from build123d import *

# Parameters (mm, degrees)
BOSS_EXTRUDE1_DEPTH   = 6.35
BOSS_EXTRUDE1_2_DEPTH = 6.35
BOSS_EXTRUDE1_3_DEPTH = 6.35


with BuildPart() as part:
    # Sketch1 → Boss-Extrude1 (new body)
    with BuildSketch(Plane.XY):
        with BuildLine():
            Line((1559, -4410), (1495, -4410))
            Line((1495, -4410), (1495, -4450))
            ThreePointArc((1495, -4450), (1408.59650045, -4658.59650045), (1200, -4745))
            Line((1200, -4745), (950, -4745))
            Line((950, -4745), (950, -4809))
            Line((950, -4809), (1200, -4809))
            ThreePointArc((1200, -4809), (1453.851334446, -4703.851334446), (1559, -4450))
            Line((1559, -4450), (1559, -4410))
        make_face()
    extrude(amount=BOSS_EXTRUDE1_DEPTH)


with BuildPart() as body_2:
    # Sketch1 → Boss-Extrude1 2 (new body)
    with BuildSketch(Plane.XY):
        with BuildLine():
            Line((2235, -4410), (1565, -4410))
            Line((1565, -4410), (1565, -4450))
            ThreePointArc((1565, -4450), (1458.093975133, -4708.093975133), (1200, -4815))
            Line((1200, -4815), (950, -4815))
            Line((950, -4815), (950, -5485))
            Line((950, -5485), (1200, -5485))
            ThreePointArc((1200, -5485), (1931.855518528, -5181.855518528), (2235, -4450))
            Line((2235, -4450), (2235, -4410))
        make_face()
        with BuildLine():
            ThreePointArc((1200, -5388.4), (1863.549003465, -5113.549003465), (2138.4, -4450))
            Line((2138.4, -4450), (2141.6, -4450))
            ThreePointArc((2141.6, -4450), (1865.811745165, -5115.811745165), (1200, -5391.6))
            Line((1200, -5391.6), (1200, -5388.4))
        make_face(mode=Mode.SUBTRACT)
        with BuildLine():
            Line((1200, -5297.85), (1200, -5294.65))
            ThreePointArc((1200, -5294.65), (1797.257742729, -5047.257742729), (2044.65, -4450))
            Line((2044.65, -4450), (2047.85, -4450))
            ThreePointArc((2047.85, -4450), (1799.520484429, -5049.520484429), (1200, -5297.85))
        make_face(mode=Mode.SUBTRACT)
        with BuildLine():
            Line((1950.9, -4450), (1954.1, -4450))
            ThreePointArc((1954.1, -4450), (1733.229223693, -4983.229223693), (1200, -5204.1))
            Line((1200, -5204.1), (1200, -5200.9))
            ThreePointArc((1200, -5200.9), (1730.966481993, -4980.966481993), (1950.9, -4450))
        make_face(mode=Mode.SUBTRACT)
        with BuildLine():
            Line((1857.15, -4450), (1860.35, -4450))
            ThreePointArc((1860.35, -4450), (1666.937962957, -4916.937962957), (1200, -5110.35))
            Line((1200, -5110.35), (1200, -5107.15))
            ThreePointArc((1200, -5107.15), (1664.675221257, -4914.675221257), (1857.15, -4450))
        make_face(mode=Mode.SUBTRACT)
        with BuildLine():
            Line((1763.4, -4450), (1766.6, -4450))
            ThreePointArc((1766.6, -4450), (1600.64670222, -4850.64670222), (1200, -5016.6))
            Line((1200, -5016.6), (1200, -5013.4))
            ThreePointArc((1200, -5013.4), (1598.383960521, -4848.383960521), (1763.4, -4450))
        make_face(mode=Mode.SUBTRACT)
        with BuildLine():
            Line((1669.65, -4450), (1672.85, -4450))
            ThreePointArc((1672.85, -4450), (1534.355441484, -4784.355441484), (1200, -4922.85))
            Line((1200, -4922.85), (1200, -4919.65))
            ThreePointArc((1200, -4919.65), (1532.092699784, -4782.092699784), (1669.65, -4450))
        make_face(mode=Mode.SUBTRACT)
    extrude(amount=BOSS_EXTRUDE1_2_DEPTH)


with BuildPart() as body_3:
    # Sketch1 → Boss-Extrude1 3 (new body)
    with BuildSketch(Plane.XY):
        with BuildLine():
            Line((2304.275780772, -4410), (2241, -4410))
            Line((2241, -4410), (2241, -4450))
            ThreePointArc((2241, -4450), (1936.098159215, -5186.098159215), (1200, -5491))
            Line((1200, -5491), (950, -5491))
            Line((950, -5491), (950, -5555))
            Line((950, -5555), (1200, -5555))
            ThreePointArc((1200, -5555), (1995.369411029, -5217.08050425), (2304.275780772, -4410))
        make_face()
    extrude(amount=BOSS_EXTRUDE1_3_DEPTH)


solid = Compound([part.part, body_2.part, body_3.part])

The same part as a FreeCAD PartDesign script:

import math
import FreeCAD as App
import Part
import Sketcher
from FreeCAD import Vector

doc = App.newDocument("Part")
params = doc.addObject("Spreadsheet::Sheet", "Params")
for row, (alias, value) in enumerate([
    ("sketch1_radius", "295 mm"),
    ("sketch1_radius2", "359 mm"),
    ("sketch1_width", "250 mm"),
    ("sketch1_height", "40 mm"),
    ("pad1_length", "6.35 mm"),
    ("sketch2_radius", "365 mm"),
    ("sketch2_radius2", "1035 mm"),
    ("sketch2_radius3", "938.4 mm"),
    ("sketch2_radius4", "941.6 mm"),
    ("sketch2_radius5", "750.9 mm"),
    ("pad2_length", "6.35 mm"),
    ("sketch3_radius", "1041 mm"),
    ("sketch3_radius2", "1105 mm"),
    ("sketch3_width", "250 mm"),
    ("sketch3_height", "40 mm"),
    ("pad3_length", "6.35 mm"),
], start=1):
    params.set(f"A{row}", alias)
    params.set(f"B{row}", "=" + value)
    params.setAlias(f"B{row}", alias)

body = doc.addObject("PartDesign::Body", "Body")

# Sketch on XY plane
sketch1 = doc.addObject("Sketcher::SketchObject", "Sketch")
body.addObject(sketch1)
sketch1.AttachmentSupport = (doc.XY_Plane, [""])
sketch1.MapMode = "FlatFace"
sketch1.addGeometry([
    Part.LineSegment(Vector(1559, -4410, 0), Vector(1495, -4410, 0)),  # 0
    Part.LineSegment(Vector(1495, -4410, 0), Vector(1495, -4450, 0)),  # 1
    Part.ArcOfCircle(Part.Circle(Vector(1200, -4450, 0), Vector(0, 0, 1), 295), math.radians(-90), math.radians(0)),  # 2
    Part.LineSegment(Vector(1200, -4745, 0), Vector(950, -4745, 0)),  # 3
    Part.LineSegment(Vector(950, -4745, 0), Vector(950, -4809, 0)),  # 4
    Part.LineSegment(Vector(950, -4809, 0), Vector(1200, -4809, 0)),  # 5
    Part.ArcOfCircle(Part.Circle(Vector(1200, -4450, 0), Vector(0, 0, 1), 359), math.radians(-90), math.radians(0)),  # 6
    Part.LineSegment(Vector(1559, -4450, 0), Vector(1559, -4410, 0)),  # 7
], False)
sketch1.addConstraint([
    Sketcher.Constraint("Coincident", 0, 2, 1, 1),
    Sketcher.Constraint("Tangent", 1, 2, 2, 2),
    Sketcher.Constraint("Tangent", 2, 1, 3, 1),
    Sketcher.Constraint("Coincident", 3, 2, 4, 1),
    Sketcher.Constraint("Coincident", 4, 2, 5, 1),
    Sketcher.Constraint("Tangent", 5, 2, 6, 1),
    Sketcher.Constraint("Tangent", 6, 2, 7, 1),
    Sketcher.Constraint("Coincident", 7, 2, 0, 1),
    Sketcher.Constraint("Horizontal", 0),
    Sketcher.Constraint("Vertical", 1),
    Sketcher.Constraint("Horizontal", 3),
    Sketcher.Constraint("Vertical", 4),
    Sketcher.Constraint("Horizontal", 5),
    Sketcher.Constraint("Vertical", 7),
    Sketcher.Constraint("Coincident", 6, 3, 2, 3),
    Sketcher.Constraint("Radius", 2, 295.0),
    Sketcher.Constraint("Radius", 6, 359.0),
    Sketcher.Constraint("DistanceX", 3, 2, 3, 1, 250.0),
    Sketcher.Constraint("DistanceY", 1, 2, 1, 1, 40.0),
    Sketcher.Constraint("DistanceX", -1, 1, 2, 3, 1200.0),
    Sketcher.Constraint("DistanceY", 2, 3, -1, 1, 4450.0),
])
sketch1.setExpression("Constraints[15]", "Params.sketch1_radius")
sketch1.setExpression("Constraints[16]", "Params.sketch1_radius2")
sketch1.setExpression("Constraints[17]", "Params.sketch1_width")
sketch1.setExpression("Constraints[18]", "Params.sketch1_height")
pad1 = doc.addObject("PartDesign::Pad", "Pad")
body.addObject(pad1)
pad1.Profile = sketch1
pad1.setExpression("Length", "Params.pad1_length")
body2 = doc.addObject("PartDesign::Body", "Body001")

# Sketch on XY plane
sketch2 = doc.addObject("Sketcher::SketchObject", "Sketch001")
body2.addObject(sketch2)
sketch2.AttachmentSupport = (doc.getObject("XY_Plane001"), [""])
sketch2.MapMode = "FlatFace"
sketch2.addGeometry([
    Part.LineSegment(Vector(2235, -4410, 0), Vector(1565, -4410, 0)),  # 0
    Part.LineSegment(Vector(1565, -4410, 0), Vector(1565, -4450, 0)),  # 1
    Part.ArcOfCircle(Part.Circle(Vector(1200, -4450, 0), Vector(0, 0, 1), 365), math.radians(-90), math.radians(0)),  # 2
    Part.LineSegment(Vector(1200, -4815, 0), Vector(950, -4815, 0)),  # 3
    Part.LineSegment(Vector(950, -4815, 0), Vector(950, -5485, 0)),  # 4
    Part.LineSegment(Vector(950, -5485, 0), Vector(1200, -5485, 0)),  # 5
    Part.ArcOfCircle(Part.Circle(Vector(1200, -4450, 0), Vector(0, 0, 1), 1035), math.radians(-90), math.radians(0)),  # 6
    Part.LineSegment(Vector(2235, -4450, 0), Vector(2235, -4410, 0)),  # 7
    Part.LineSegment(Vector(1200, -5391.6, 0), Vector(1200, -5388.4, 0)),  # 8
    Part.ArcOfCircle(Part.Circle(Vector(1200, -4450, 0), Vector(0, 0, 1), 938.4), math.radians(-90), math.radians(0)),  # 9
    Part.LineSegment(Vector(2138.4, -4450, 0), Vector(2141.6, -4450, 0)),  # 10
    Part.ArcOfCircle(Part.Circle(Vector(1200, -4450, 0), Vector(0, 0, 1), 941.6), math.radians(-90), math.radians(0)),  # 11
    Part.ArcOfCircle(Part.Circle(Vector(1200, -4450, 0), Vector(0, 0, 1), 847.9), math.radians(-90), math.radians(0)),  # 12
    Part.LineSegment(Vector(1200, -5297.9, 0), Vector(1200, -5294.6, 0)),  # 13
    Part.ArcOfCircle(Part.Circle(Vector(1200, -4450, 0), Vector(0, 0, 1), 844.7), math.radians(-90), math.radians(0)),  # 14
    Part.LineSegment(Vector(2044.7, -4450, 0), Vector(2047.8, -4450, 0)),  # 15
    Part.ArcOfCircle(Part.Circle(Vector(1200, -4450, 0), Vector(0, 0, 1), 750.9), math.radians(-90), math.radians(0)),  # 16
    Part.LineSegment(Vector(1950.9, -4450, 0), Vector(1954.1, -4450, 0)),  # 17
    Part.ArcOfCircle(Part.Circle(Vector(1200, -4450, 0), Vector(0, 0, 1), 754.1), math.radians(-90), math.radians(0)),  # 18
    Part.LineSegment(Vector(1200, -5204.1, 0), Vector(1200, -5200.9, 0)),  # 19
    Part.ArcOfCircle(Part.Circle(Vector(1200, -4450, 0), Vector(0, 0, 1), 657.1), math.radians(-90), math.radians(0)),  # 20
    Part.LineSegment(Vector(1857.2, -4450, 0), Vector(1860.3, -4450, 0)),  # 21
    Part.ArcOfCircle(Part.Circle(Vector(1200, -4450, 0), Vector(0, 0, 1), 660.3), math.radians(-90), math.radians(0)),  # 22
    Part.LineSegment(Vector(1200, -5110.4, 0), Vector(1200, -5107.1, 0)),  # 23
    Part.ArcOfCircle(Part.Circle(Vector(1200, -4450, 0), Vector(0, 0, 1), 563.4), math.radians(-90), math.radians(0)),  # 24
    Part.LineSegment(Vector(1763.4, -4450, 0), Vector(1766.6, -4450, 0)),  # 25
    Part.ArcOfCircle(Part.Circle(Vector(1200, -4450, 0), Vector(0, 0, 1), 566.6), math.radians(-90), math.radians(0)),  # 26
    Part.LineSegment(Vector(1200, -5016.6, 0), Vector(1200, -5013.4, 0)),  # 27
    Part.ArcOfCircle(Part.Circle(Vector(1200, -4450, 0), Vector(0, 0, 1), 469.7), math.radians(-90), math.radians(0)),  # 28
    Part.LineSegment(Vector(1669.7, -4450, 0), Vector(1672.8, -4450, 0)),  # 29
    Part.ArcOfCircle(Part.Circle(Vector(1200, -4450, 0), Vector(0, 0, 1), 472.9), math.radians(-90), math.radians(0)),  # 30
    Part.LineSegment(Vector(1200, -4922.9, 0), Vector(1200, -4919.6, 0)),  # 31
], False)
sketch2.addConstraint([
    Sketcher.Constraint("Coincident", 0, 2, 1, 1),
    Sketcher.Constraint("Tangent", 1, 2, 2, 2),
    Sketcher.Constraint("Tangent", 2, 1, 3, 1),
    Sketcher.Constraint("Coincident", 3, 2, 4, 1),
    Sketcher.Constraint("Coincident", 4, 2, 5, 1),
    Sketcher.Constraint("Tangent", 5, 2, 6, 1),
    Sketcher.Constraint("Tangent", 6, 2, 7, 1),
    Sketcher.Constraint("Coincident", 7, 2, 0, 1),
    Sketcher.Constraint("Coincident", 8, 2, 9, 1),
    Sketcher.Constraint("Coincident", 9, 2, 10, 1),
    Sketcher.Constraint("Coincident", 10, 2, 11, 2),
    Sketcher.Constraint("Coincident", 11, 1, 8, 1),
    Sketcher.Constraint("Coincident", 12, 1, 13, 1),
    Sketcher.Constraint("Coincident", 13, 2, 14, 1),
    Sketcher.Constraint("Coincident", 14, 2, 15, 1),
    Sketcher.Constraint("Coincident", 15, 2, 12, 2),
    Sketcher.Constraint("Coincident", 16, 2, 17, 1),
    Sketcher.Constraint("Coincident", 17, 2, 18, 2),
    Sketcher.Constraint("Coincident", 18, 1, 19, 1),
    Sketcher.Constraint("Coincident", 19, 2, 16, 1),
    Sketcher.Constraint("Coincident", 20, 2, 21, 1),
    Sketcher.Constraint("Coincident", 21, 2, 22, 2),
    Sketcher.Constraint("Coincident", 22, 1, 23, 1),
    Sketcher.Constraint("Coincident", 23, 2, 20, 1),
    Sketcher.Constraint("Coincident", 24, 2, 25, 1),
    Sketcher.Constraint("Coincident", 25, 2, 26, 2),
    Sketcher.Constraint("Coincident", 26, 1, 27, 1),
    Sketcher.Constraint("Coincident", 27, 2, 24, 1),
    Sketcher.Constraint("Coincident", 28, 2, 29, 1),
    Sketcher.Constraint("Coincident", 29, 2, 30, 2),
    Sketcher.Constraint("Coincident", 30, 1, 31, 1),
    Sketcher.Constraint("Coincident", 31, 2, 28, 1),
    Sketcher.Constraint("Horizontal", 0),
    Sketcher.Constraint("Vertical", 1),
    Sketcher.Constraint("Horizontal", 3),
    Sketcher.Constraint("Vertical", 4),
    Sketcher.Constraint("Horizontal", 5),
    Sketcher.Constraint("Vertical", 7),
    Sketcher.Constraint("Vertical", 8),
    Sketcher.Constraint("Horizontal", 10),
    Sketcher.Constraint("Vertical", 13),
    Sketcher.Constraint("Horizontal", 15),
    Sketcher.Constraint("Horizontal", 17),
    Sketcher.Constraint("Vertical", 19),
    Sketcher.Constraint("Horizontal", 21),
    Sketcher.Constraint("Vertical", 23),
    Sketcher.Constraint("Horizontal", 25),
    Sketcher.Constraint("Vertical", 27),
    Sketcher.Constraint("Horizontal", 29),
    Sketcher.Constraint("Vertical", 31),
    Sketcher.Constraint("Coincident", 6, 3, 2, 3),
    Sketcher.Constraint("Coincident", 9, 3, 2, 3),
    Sketcher.Constraint("Coincident", 11, 3, 2, 3),
    Sketcher.Constraint("Coincident", 12, 3, 2, 3),
    Sketcher.Constraint("Coincident", 14, 3, 2, 3),
    Sketcher.Constraint("Coincident", 16, 3, 2, 3),
    Sketcher.Constraint("Coincident", 18, 3, 2, 3),
    Sketcher.Constraint("Coincident", 20, 3, 2, 3),
    Sketcher.Constraint("Coincident", 22, 3, 2, 3),
    Sketcher.Constraint("Coincident", 24, 3, 2, 3),
    Sketcher.Constraint("Coincident", 26, 3, 2, 3),
    Sketcher.Constraint("Coincident", 28, 3, 2, 3),
    Sketcher.Constraint("Coincident", 30, 3, 2, 3),
    Sketcher.Constraint("Horizontal", 25, 2, 28, 2),
    Sketcher.Constraint("Vertical", 5, 2, 8, 2),
    Sketcher.Constraint("Vertical", 27, 2, 30, 1),
    Sketcher.Constraint("Equal", 10, 15),
    Sketcher.Constraint("Equal", 15, 17),
    Sketcher.Constraint("Equal", 17, 21),
    Sketcher.Constraint("Equal", 21, 25),
    Sketcher.Constraint("Equal", 25, 29),
    Sketcher.Constraint("Radius", 2, 365.0),
    Sketcher.Constraint("Radius", 6, 1035.0),
    Sketcher.Constraint("Radius", 9, 938.4),
    Sketcher.Constraint("Radius", 11, 941.6),
    Sketcher.Constraint("Radius", 16, 750.9),
    Sketcher.Constraint("Radius", 24, 563.4),
    Sketcher.Constraint("DistanceX", 3, 2, 3, 1, 250.0),
    Sketcher.Constraint("DistanceY", 1, 2, 1, 1, 40.0),
    Sketcher.Constraint("Radius", 12, 847.85),
    Sketcher.Constraint("Radius", 20, 657.15),
    Sketcher.Constraint("Radius", 28, 469.65),
    Sketcher.Constraint("DistanceX", -1, 1, 2, 3, 1200.0),
    Sketcher.Constraint("DistanceY", 2, 3, -1, 1, 4450.0),
    Sketcher.Constraint("DistanceY", 10, 2, -1, 1, 4450.0),
    Sketcher.Constraint("DistanceX", -1, 1, 13, 2, 1200.0),
    Sketcher.Constraint("DistanceY", 15, 2, -1, 1, 4450.0),
    Sketcher.Constraint("DistanceY", 17, 2, -1, 1, 4450.0),
    Sketcher.Constraint("DistanceX", -1, 1, 19, 2, 1200.0),
    Sketcher.Constraint("DistanceY", 21, 2, -1, 1, 4450.0),
    Sketcher.Constraint("DistanceX", -1, 1, 23, 2, 1200.0),
    Sketcher.Constraint("DistanceY", 25, 2, -1, 1, 4450.0),
    Sketcher.Constraint("DistanceX", -1, 1, 27, 2, 1200.0),
])
sketch2.setExpression("Constraints[71]", "Params.sketch2_radius")
sketch2.setExpression("Constraints[72]", "Params.sketch2_radius2")
sketch2.setExpression("Constraints[73]", "Params.sketch2_radius3")
sketch2.setExpression("Constraints[74]", "Params.sketch2_radius4")
sketch2.setExpression("Constraints[75]", "Params.sketch2_radius5")
pad2 = doc.addObject("PartDesign::Pad", "Pad001")
body2.addObject(pad2)
pad2.Profile = sketch2
pad2.setExpression("Length", "Params.pad2_length")
body3 = doc.addObject("PartDesign::Body", "Body002")

# Sketch on XY plane
sketch3 = doc.addObject("Sketcher::SketchObject", "Sketch002")
body3.addObject(sketch3)
sketch3.AttachmentSupport = (doc.getObject("XY_Plane002"), [""])
sketch3.MapMode = "FlatFace"
sketch3.addGeometry([
    Part.LineSegment(Vector(2304, -4410, 0), Vector(2241, -4410, 0)),  # 0
    Part.LineSegment(Vector(2241, -4410, 0), Vector(2241, -4450, 0)),  # 1
    Part.ArcOfCircle(Part.Circle(Vector(1200, -4450, 0), Vector(0, 0, 1), 1041), math.radians(-90), math.radians(0)),  # 2
    Part.LineSegment(Vector(1200, -5491, 0), Vector(950, -5491, 0)),  # 3
    Part.LineSegment(Vector(950, -5491, 0), Vector(950, -5555, 0)),  # 4
    Part.LineSegment(Vector(950, -5555, 0), Vector(1200, -5555, 0)),  # 5
    Part.ArcOfCircle(Part.Circle(Vector(1200, -4450, 0), Vector(0, 0, 1), 1105), math.radians(-90), math.radians(2)),  # 6
], False)
sketch3.addConstraint([
    Sketcher.Constraint("Coincident", 0, 2, 1, 1),
    Sketcher.Constraint("Tangent", 1, 2, 2, 2),
    Sketcher.Constraint("Tangent", 2, 1, 3, 1),
    Sketcher.Constraint("Coincident", 3, 2, 4, 1),
    Sketcher.Constraint("Coincident", 4, 2, 5, 1),
    Sketcher.Constraint("Tangent", 5, 2, 6, 1),
    Sketcher.Constraint("Coincident", 6, 2, 0, 1),
    Sketcher.Constraint("Horizontal", 0),
    Sketcher.Constraint("Vertical", 1),
    Sketcher.Constraint("Horizontal", 3),
    Sketcher.Constraint("Vertical", 4),
    Sketcher.Constraint("Horizontal", 5),
    Sketcher.Constraint("Coincident", 6, 3, 2, 3),
    Sketcher.Constraint("Radius", 2, 1041.0),
    Sketcher.Constraint("Radius", 6, 1105.0),
    Sketcher.Constraint("DistanceX", 3, 2, 3, 1, 250.0),
    Sketcher.Constraint("DistanceY", 1, 2, 1, 1, 40.0),
    Sketcher.Constraint("DistanceX", -1, 1, 2, 3, 1200.0),
    Sketcher.Constraint("DistanceY", 2, 3, -1, 1, 4450.0),
])
sketch3.setExpression("Constraints[13]", "Params.sketch3_radius")
sketch3.setExpression("Constraints[14]", "Params.sketch3_radius2")
sketch3.setExpression("Constraints[15]", "Params.sketch3_width")
sketch3.setExpression("Constraints[16]", "Params.sketch3_height")
pad3 = doc.addObject("PartDesign::Pad", "Pad002")
body3.addObject(pad3)
pad3.Profile = sketch3
pad3.setExpression("Length", "Params.pad3_length")

doc.recompute()
